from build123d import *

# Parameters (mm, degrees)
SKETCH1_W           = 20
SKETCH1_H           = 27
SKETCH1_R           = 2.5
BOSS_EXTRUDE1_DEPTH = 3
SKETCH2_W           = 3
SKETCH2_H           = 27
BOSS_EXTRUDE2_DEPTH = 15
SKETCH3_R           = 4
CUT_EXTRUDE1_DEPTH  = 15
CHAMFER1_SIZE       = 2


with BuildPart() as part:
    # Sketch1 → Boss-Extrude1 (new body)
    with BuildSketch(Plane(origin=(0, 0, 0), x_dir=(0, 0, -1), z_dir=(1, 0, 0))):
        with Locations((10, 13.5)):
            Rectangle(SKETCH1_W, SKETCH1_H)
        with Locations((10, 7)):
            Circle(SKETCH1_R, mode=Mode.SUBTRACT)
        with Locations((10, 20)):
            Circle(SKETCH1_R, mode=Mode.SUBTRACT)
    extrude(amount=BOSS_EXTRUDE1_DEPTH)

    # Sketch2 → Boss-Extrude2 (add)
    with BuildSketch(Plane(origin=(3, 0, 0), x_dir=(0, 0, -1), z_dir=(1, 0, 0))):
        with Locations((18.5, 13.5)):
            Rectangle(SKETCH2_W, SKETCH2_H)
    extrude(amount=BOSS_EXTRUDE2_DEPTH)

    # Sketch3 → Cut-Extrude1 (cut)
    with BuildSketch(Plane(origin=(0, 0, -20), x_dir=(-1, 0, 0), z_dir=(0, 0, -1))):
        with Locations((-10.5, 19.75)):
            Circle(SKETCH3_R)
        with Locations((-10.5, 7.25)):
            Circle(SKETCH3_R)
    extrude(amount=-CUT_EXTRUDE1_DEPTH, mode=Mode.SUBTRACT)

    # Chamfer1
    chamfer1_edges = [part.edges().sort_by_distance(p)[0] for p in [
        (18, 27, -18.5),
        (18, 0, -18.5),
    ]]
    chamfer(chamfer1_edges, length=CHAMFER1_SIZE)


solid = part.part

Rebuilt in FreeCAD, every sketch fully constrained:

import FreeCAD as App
import Part
import Sketcher


def edges_at(feature, points):
    """Names of the edges that pass closest to the given points."""
    edges = feature.Shape.Edges
    near = lambda p: min(range(len(edges)), key=lambda i: edges[i].distToShape(Part.Vertex(*p))[0])
    return sorted({f"Edge{near(p) + 1}" for p in points})

doc = App.newDocument("Part")
params = doc.addObject("Spreadsheet::Sheet", "Params")
for row, (alias, value) in enumerate([
    ("sketch1_diameter", "5 mm"),
    ("sketch1_width", "27 mm"),
    ("sketch1_height", "20 mm"),
    ("pad1_length", "3 mm"),
    ("sketch2_width", "27 mm"),
    ("sketch2_height", "3 mm"),
    ("pad2_length", "15 mm"),
    ("sketch3_diameter", "8 mm"),
    ("pocket1_length", "15 mm"),
    ("chamfer_size", "2 mm"),
], start=1):
    params.set(f"A{row}", alias)
    params.set(f"B{row}", "=" + value)
    params.setAlias(f"B{row}", alias)

body = doc.addObject("PartDesign::Body", "Body")

sketch1 = doc.addObject("Sketcher::SketchObject", "Sketch")
body.addObject(sketch1)
sketch1.AttachmentSupport = (doc.YZ_Plane, [""])
sketch1.MapMode = "FlatFace"
sketch1.addGeometry(Part.LineSegment(App.Vector(27, 0, 0), App.Vector(0, 0, 0)), False)
sketch1.addGeometry(Part.LineSegment(App.Vector(0, 0, 0), App.Vector(0, -20, 0)), False)
sketch1.addGeometry(Part.LineSegment(App.Vector(0, -20, 0), App.Vector(27, -20, 0)), False)
sketch1.addGeometry(Part.LineSegment(App.Vector(27, -20, 0), App.Vector(27, 0, 0)), False)
sketch1.addGeometry(Part.Circle(App.Vector(7, -10, 0), App.Vector(0, 0, 1), 2.5), False)
sketch1.addGeometry(Part.Circle(App.Vector(20, -10, 0), App.Vector(0, 0, 1), 2.5), False)
sketch1.addConstraint(Sketcher.Constraint("Coincident", 0, 2, 1, 1))
sketch1.addConstraint(Sketcher.Constraint("Coincident", 1, 2, 2, 1))
sketch1.addConstraint(Sketcher.Constraint("Coincident", 2, 2, 3, 1))
sketch1.addConstraint(Sketcher.Constraint("Coincident", 3, 2, 0, 1))
sketch1.addConstraint(Sketcher.Constraint("Horizontal", 0))
sketch1.addConstraint(Sketcher.Constraint("Vertical", 1))
sketch1.addConstraint(Sketcher.Constraint("Horizontal", 2))
sketch1.addConstraint(Sketcher.Constraint("Vertical", 3))
sketch1.addConstraint(Sketcher.Constraint("Coincident", 0, 2, -1, 1))
sketch1.addConstraint(Sketcher.Constraint("Equal", 4, 5))
sketch1.addConstraint(Sketcher.Constraint("Horizontal", 4, 3, 5, 3))
sketch1.addConstraint(Sketcher.Constraint("Diameter", 4, 5.0))
sketch1.addConstraint(Sketcher.Constraint("DistanceX", 0, 2, 0, 1, 27.0))
sketch1.addConstraint(Sketcher.Constraint("DistanceY", 1, 2, 1, 1, 20.0))
sketch1.addConstraint(Sketcher.Constraint("DistanceX", -1, 1, 4, 3, 7.0))
sketch1.addConstraint(Sketcher.Constraint("DistanceY", 4, 3, -1, 1, 10.0))
sketch1.addConstraint(Sketcher.Constraint("DistanceX", -1, 1, 5, 3, 20.0))
sketch1.setExpression("Constraints[11]", "Params.sketch1_diameter")
sketch1.setExpression("Constraints[12]", "Params.sketch1_width")
sketch1.setExpression("Constraints[13]", "Params.sketch1_height")
pad1 = doc.addObject("PartDesign::Pad", "Pad")
body.addObject(pad1)
pad1.Profile = sketch1
pad1.setExpression("Length", "Params.pad1_length")

sketch2 = doc.addObject("Sketcher::SketchObject", "Sketch001")
body.addObject(sketch2)
sketch2.AttachmentSupport = (doc.YZ_Plane, [""])
sketch2.MapMode = "FlatFace"
sketch2.AttachmentOffset = App.Placement(App.Vector(0, 0, 3), App.Rotation())
sketch2.addGeometry(Part.LineSegment(App.Vector(27, -17, 0), App.Vector(0, -17, 0)), False)
sketch2.addGeometry(Part.LineSegment(App.Vector(0, -17, 0), App.Vector(0, -20, 0)), False)
sketch2.addGeometry(Part.LineSegment(App.Vector(0, -20, 0), App.Vector(27, -20, 0)), False)
sketch2.addGeometry(Part.LineSegment(App.Vector(27, -20, 0), App.Vector(27, -17, 0)), False)
sketch2.addConstraint(Sketcher.Constraint("Coincident", 0, 2, 1, 1))
sketch2.addConstraint(Sketcher.Constraint("Coincident", 1, 2, 2, 1))
sketch2.addConstraint(Sketcher.Constraint("Coincident", 2, 2, 3, 1))
sketch2.addConstraint(Sketcher.Constraint("Coincident", 3, 2, 0, 1))
sketch2.addConstraint(Sketcher.Constraint("Horizontal", 0))
sketch2.addConstraint(Sketcher.Constraint("Vertical", 1))
sketch2.addConstraint(Sketcher.Constraint("Horizontal", 2))
sketch2.addConstraint(Sketcher.Constraint("Vertical", 3))
sketch2.addConstraint(Sketcher.Constraint("PointOnObject", 0, 2, -2))
sketch2.addConstraint(Sketcher.Constraint("DistanceX", 0, 2, 0, 1, 27.0))
sketch2.addConstraint(Sketcher.Constraint("DistanceY", 1, 2, 1, 1, 3.0))
sketch2.addConstraint(Sketcher.Constraint("DistanceY", 0, 2, -1, 1, 17.0))
sketch2.setExpression("Constraints[9]", "Params.sketch2_width")
sketch2.setExpression("Constraints[10]", "Params.sketch2_height")
pad2 = doc.addObject("PartDesign::Pad", "Pad001")
body.addObject(pad2)
pad2.Profile = sketch2
pad2.setExpression("Length", "Params.pad2_length")

sketch3 = doc.addObject("Sketcher::SketchObject", "Sketch002")
body.addObject(sketch3)
sketch3.AttachmentSupport = (doc.XY_Plane, [""])
sketch3.MapMode = "FlatFace"
sketch3.AttachmentOffset = App.Placement(App.Vector(0, 0, -20), App.Rotation())
sketch3.addGeometry(Part.Circle(App.Vector(10.5, 19.75, 0), App.Vector(0, 0, 1), 4), False)
sketch3.addGeometry(Part.Circle(App.Vector(10.5, 7.25, 0), App.Vector(0, 0, 1), 4), False)
sketch3.addConstraint(Sketcher.Constraint("Equal", 0, 1))
sketch3.addConstraint(Sketcher.Constraint("Vertical", 0, 3, 1, 3))
sketch3.addConstraint(Sketcher.Constraint("Diameter", 0, 8.0))
sketch3.addConstraint(Sketcher.Constraint("DistanceX", -1, 1, 0, 3, 10.5))
sketch3.addConstraint(Sketcher.Constraint("DistanceY", 1, 3, 0, 3, 12.5))
sketch3.addConstraint(Sketcher.Constraint("DistanceY", -1, 1, 0, 3, 19.75))
sketch3.setExpression("Constraints[2]", "Params.sketch3_diameter")
pocket1 = doc.addObject("PartDesign::Pocket", "Pocket")
body.addObject(pocket1)
pocket1.Profile = sketch3
pocket1.setExpression("Length", "Params.pocket1_length")
pocket1.Reversed = True
doc.recompute()

chamfer = doc.addObject("PartDesign::Chamfer", "Chamfer")
body.addObject(chamfer)
chamfer.Base = (pocket1, edges_at(pocket1, [(18, 27, -18.5), (18, 0, -18.5)]))
chamfer.setExpression("Size", "Params.chamfer_size")

doc.recompute()
